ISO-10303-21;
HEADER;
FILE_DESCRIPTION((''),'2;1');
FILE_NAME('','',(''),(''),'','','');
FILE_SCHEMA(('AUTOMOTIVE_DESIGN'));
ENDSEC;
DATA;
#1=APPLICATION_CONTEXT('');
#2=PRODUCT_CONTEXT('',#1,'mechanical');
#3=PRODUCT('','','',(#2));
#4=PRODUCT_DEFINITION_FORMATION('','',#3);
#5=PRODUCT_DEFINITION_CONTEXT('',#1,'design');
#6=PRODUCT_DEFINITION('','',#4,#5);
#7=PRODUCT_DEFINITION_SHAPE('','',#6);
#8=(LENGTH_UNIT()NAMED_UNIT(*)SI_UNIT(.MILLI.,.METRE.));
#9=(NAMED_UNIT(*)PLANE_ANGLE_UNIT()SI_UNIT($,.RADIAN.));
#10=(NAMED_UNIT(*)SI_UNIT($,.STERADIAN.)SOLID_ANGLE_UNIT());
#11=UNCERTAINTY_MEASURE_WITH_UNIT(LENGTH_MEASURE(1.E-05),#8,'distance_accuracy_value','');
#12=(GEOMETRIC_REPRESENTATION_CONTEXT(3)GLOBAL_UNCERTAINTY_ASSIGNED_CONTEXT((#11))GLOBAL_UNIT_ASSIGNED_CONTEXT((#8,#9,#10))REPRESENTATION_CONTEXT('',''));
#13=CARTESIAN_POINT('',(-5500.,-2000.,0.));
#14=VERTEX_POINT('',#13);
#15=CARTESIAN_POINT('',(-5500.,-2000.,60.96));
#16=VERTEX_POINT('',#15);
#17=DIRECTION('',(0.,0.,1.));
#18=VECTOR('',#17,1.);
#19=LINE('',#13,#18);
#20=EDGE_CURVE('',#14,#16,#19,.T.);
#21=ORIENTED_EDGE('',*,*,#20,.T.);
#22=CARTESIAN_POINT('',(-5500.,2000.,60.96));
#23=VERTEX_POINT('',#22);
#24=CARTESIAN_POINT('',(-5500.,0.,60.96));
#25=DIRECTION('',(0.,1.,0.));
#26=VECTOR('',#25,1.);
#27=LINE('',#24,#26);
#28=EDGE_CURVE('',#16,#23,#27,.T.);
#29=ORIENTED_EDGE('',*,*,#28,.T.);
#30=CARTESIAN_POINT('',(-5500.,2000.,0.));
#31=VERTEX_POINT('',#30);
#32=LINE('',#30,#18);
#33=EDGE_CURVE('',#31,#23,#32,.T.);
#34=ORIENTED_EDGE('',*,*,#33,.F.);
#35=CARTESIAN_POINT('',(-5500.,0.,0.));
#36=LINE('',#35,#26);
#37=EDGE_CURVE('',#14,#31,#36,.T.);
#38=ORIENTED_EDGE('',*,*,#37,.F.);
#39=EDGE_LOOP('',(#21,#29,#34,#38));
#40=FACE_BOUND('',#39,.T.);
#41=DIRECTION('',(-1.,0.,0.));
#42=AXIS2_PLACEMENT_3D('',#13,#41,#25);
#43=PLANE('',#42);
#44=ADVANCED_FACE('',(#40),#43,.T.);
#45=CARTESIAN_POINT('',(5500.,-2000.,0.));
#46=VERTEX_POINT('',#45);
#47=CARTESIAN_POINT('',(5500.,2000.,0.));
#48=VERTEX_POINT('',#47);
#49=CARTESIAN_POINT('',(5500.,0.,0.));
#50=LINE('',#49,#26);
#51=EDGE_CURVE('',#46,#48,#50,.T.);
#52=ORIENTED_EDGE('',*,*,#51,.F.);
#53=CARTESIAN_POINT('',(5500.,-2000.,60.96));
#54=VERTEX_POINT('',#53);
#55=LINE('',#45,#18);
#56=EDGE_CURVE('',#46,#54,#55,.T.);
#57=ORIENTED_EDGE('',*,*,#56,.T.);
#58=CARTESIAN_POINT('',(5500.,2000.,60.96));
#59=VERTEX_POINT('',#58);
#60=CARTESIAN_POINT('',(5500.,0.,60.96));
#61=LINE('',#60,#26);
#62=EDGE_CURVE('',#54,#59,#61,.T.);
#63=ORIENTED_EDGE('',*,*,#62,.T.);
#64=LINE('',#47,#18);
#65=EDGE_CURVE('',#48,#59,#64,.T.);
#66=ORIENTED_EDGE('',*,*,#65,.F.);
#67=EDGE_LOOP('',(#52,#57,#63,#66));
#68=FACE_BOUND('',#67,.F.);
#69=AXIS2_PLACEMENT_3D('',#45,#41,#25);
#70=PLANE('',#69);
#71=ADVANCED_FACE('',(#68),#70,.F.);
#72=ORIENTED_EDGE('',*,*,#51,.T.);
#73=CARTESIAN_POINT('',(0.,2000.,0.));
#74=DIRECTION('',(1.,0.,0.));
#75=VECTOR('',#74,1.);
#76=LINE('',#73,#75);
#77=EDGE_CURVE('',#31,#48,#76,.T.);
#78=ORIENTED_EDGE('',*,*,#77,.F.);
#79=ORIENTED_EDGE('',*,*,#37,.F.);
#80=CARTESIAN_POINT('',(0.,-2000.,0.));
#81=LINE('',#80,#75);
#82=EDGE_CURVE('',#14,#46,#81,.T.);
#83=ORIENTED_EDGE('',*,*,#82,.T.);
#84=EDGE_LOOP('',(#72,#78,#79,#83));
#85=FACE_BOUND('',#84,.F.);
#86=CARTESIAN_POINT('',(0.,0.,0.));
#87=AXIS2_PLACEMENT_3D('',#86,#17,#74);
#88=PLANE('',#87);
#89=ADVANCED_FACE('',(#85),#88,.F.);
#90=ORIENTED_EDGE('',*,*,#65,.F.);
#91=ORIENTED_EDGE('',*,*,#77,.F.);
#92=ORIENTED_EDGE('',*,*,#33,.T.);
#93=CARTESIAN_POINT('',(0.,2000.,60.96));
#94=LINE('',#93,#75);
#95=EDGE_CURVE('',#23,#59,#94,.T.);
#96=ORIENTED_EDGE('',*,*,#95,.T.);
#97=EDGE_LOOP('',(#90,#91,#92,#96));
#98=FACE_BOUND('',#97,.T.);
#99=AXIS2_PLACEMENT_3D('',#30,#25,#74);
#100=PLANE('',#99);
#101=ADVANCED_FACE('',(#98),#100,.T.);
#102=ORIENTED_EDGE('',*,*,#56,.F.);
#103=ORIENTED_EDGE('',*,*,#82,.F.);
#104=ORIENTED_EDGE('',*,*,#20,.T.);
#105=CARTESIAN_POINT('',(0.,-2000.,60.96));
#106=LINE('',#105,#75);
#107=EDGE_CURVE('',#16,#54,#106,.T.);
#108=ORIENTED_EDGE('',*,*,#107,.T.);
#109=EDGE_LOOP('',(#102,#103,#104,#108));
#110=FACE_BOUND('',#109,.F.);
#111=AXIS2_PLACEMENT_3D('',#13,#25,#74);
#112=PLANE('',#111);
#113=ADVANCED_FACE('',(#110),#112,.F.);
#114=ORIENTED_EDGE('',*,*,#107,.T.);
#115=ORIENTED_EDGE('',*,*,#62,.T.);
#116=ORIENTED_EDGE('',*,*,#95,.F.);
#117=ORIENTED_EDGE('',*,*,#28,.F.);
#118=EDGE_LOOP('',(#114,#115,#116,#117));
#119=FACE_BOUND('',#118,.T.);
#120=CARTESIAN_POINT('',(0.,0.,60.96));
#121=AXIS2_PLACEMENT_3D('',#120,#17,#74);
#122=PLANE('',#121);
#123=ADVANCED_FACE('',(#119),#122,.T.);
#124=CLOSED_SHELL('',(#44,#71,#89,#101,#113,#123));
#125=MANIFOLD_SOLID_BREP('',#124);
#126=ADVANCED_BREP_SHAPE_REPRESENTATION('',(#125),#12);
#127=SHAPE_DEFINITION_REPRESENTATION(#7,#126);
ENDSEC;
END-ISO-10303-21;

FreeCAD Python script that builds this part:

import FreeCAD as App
import Part
import Sketcher
from FreeCAD import Vector


def add_polygon(sketch, points):
    """Adds a closed chain of lines whose ends are joined by coincident constraints."""
    first, n = sketch.GeometryCount, len(points)
    for a, b in zip(points, points[1:] + points[:1]):
        sketch.addGeometry(Part.LineSegment(App.Vector(*a, 0), App.Vector(*b, 0)), False)
    for i in range(n):
        sketch.addConstraint(Sketcher.Constraint("Coincident", first + i, 2, first + (i + 1) % n, 1))

doc = App.newDocument("Part")
body = doc.addObject("PartDesign::Body", "Body")

sketch1 = body.newObject("Sketcher::SketchObject", "Sketch")
sketch1.AttachmentSupport = (doc.getObject("XY_Plane"), [""])
sketch1.MapMode = "FlatFace"
add_polygon(sketch1, [(-5500, 2000), (-5500, -2000), (5500, -2000), (5500, 2000)])
sketch1.addConstraint([
    Sketcher.Constraint("Vertical", 0),
    Sketcher.Constraint("Horizontal", 1),
    Sketcher.Constraint("Vertical", 2),
    Sketcher.Constraint("Horizontal", 3),
    Sketcher.Constraint("Symmetric", 0, 2, 2, 2, -1, 1),
    Sketcher.Constraint("DistanceX", 1, 1, 1, 2, 11000.0),
    Sketcher.Constraint("DistanceY", 0, 2, 0, 1, 4000.0),
])
pad1 = body.newObject("PartDesign::Pad", "Pad")
pad1.Profile = sketch1
pad1.Length = 60.96
body2 = doc.addObject("PartDesign::Body", "Body001")

sketch2 = body2.newObject("Sketcher::SketchObject", "Sketch001")
sketch2.AttachmentSupport = (doc.getObject("YZ_Plane001"), [""])
sketch2.MapMode = "FlatFace"
sketch2.AttachmentOffset = App.Placement(Vector(0, 0, 5500), App.Rotation())
add_polygon(sketch2, [(-2000, 2016), (-2000, 61), (2000, 61), (2000, 2016)])
sketch2.addConstraint([
    Sketcher.Constraint("Vertical", 0),
    Sketcher.Constraint("Horizontal", 1),
    Sketcher.Constraint("Vertical", 2),
    Sketcher.Constraint("Horizontal", 3),
    Sketcher.Constraint("DistanceX", 1, 1, 1, 2, 4000.0),
    Sketcher.Constraint("DistanceX", 0, 2, -1, 1, 2000.0),
    Sketcher.Constraint("DistanceY", -1, 1, 0, 2, 60.96),
    Sketcher.Constraint("DistanceY", 0, 2, 0, 1, 1955.003793),
])
pad2 = body2.newObject("PartDesign::Pad", "Pad001")
pad2.Profile = sketch2
pad2.Length = 30.48
body2.Visibility = False

doc.recompute()
